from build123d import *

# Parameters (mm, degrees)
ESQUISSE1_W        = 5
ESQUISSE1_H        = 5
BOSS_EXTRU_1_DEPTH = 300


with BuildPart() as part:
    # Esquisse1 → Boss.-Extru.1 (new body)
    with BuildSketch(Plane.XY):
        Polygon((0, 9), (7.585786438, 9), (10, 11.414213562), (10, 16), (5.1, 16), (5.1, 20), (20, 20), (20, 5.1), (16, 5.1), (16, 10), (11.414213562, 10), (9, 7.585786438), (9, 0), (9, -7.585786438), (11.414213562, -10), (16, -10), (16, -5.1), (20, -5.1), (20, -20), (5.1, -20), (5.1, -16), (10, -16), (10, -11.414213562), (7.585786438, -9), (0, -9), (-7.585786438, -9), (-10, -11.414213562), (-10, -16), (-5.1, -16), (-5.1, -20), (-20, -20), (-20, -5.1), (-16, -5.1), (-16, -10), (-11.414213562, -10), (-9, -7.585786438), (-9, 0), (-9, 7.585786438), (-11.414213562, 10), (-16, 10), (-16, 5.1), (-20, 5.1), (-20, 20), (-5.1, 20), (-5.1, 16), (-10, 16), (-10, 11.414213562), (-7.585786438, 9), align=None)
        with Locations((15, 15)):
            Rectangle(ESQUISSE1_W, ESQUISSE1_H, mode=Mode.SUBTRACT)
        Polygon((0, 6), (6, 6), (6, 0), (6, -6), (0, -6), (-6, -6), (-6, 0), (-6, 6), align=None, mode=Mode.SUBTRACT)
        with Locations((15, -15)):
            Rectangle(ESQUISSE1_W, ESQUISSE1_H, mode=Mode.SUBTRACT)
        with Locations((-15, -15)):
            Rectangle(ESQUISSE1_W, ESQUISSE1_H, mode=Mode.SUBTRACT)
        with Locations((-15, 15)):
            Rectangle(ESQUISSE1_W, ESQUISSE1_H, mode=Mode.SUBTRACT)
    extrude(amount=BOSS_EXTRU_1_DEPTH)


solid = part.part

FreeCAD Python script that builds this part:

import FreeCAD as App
import Part
import Sketcher

doc = App.newDocument("Part")
body = doc.addObject("PartDesign::Body", "Body")

# Sketch on XY plane
sketch1 = doc.addObject("Sketcher::SketchObject", "Sketch")
body.addObject(sketch1)
sketch1.AttachmentSupport = (doc.XY_Plane, [""])
sketch1.MapMode = "FlatFace"
sketch1.addGeometry([
    Part.LineSegment(App.Vector(7.6, 9, 0), App.Vector(-7.6, 9, 0)),  # 0
    Part.LineSegment(App.Vector(-7.6, 9, 0), App.Vector(-10, 11.4, 0)),  # 1
    Part.LineSegment(App.Vector(-10, 11.4, 0), App.Vector(-10, 16, 0)),  # 2
    Part.LineSegment(App.Vector(-10, 16, 0), App.Vector(-5.1, 16, 0)),  # 3
    Part.LineSegment(App.Vector(-5.1, 16, 0), App.Vector(-5.1, 20, 0)),  # 4
    Part.LineSegment(App.Vector(-5.1, 20, 0), App.Vector(-20, 20, 0)),  # 5
    Part.LineSegment(App.Vector(-20, 20, 0), App.Vector(-20, 5.1, 0)),  # 6
    Part.LineSegment(App.Vector(-20, 5.1, 0), App.Vector(-16, 5.1, 0)),  # 7
    Part.LineSegment(App.Vector(-16, 5.1, 0), App.Vector(-16, 10, 0)),  # 8
    Part.LineSegment(App.Vector(-16, 10, 0), App.Vector(-11.4, 10, 0)),  # 9
    Part.LineSegment(App.Vector(-11.4, 10, 0), App.Vector(-9, 7.6, 0)),  # 10
    Part.LineSegment(App.Vector(-9, 7.6, 0), App.Vector(-9, -7.6, 0)),  # 11
    Part.LineSegment(App.Vector(-9, -7.6, 0), App.Vector(-11.4, -10, 0)),  # 12
    Part.LineSegment(App.Vector(-11.4, -10, 0), App.Vector(-16, -10, 0)),  # 13
    Part.LineSegment(App.Vector(-16, -10, 0), App.Vector(-16, -5.1, 0)),  # 14
    Part.LineSegment(App.Vector(-16, -5.1, 0), App.Vector(-20, -5.1, 0)),  # 15
    Part.LineSegment(App.Vector(-20, -5.1, 0), App.Vector(-20, -20, 0)),  # 16
    Part.LineSegment(App.Vector(-20, -20, 0), App.Vector(-5.1, -20, 0)),  # 17
    Part.LineSegment(App.Vector(-5.1, -20, 0), App.Vector(-5.1, -16, 0)),  # 18
    Part.LineSegment(App.Vector(-5.1, -16, 0), App.Vector(-10, -16, 0)),  # 19
    Part.LineSegment(App.Vector(-10, -16, 0), App.Vector(-10, -11.4, 0)),  # 20
    Part.LineSegment(App.Vector(-10, -11.4, 0), App.Vector(-7.6, -9, 0)),  # 21
    Part.LineSegment(App.Vector(-7.6, -9, 0), App.Vector(7.6, -9, 0)),  # 22
    Part.LineSegment(App.Vector(7.6, -9, 0), App.Vector(10, -11.4, 0)),  # 23
    Part.LineSegment(App.Vector(10, -11.4, 0), App.Vector(10, -16, 0)),  # 24
    Part.LineSegment(App.Vector(10, -16, 0), App.Vector(5.1, -16, 0)),  # 25
    Part.LineSegment(App.Vector(5.1, -16, 0), App.Vector(5.1, -20, 0)),  # 26
    Part.LineSegment(App.Vector(5.1, -20, 0), App.Vector(20, -20, 0)),  # 27
    Part.LineSegment(App.Vector(20, -20, 0), App.Vector(20, -5.1, 0)),  # 28
    Part.LineSegment(App.Vector(20, -5.1, 0), App.Vector(16, -5.1, 0)),  # 29
    Part.LineSegment(App.Vector(16, -5.1, 0), App.Vector(16, -10, 0)),  # 30
    Part.LineSegment(App.Vector(16, -10, 0), App.Vector(11.4, -10, 0)),  # 31
    Part.LineSegment(App.Vector(11.4, -10, 0), App.Vector(9, -7.6, 0)),  # 32
    Part.LineSegment(App.Vector(9, -7.6, 0), App.Vector(9, 7.6, 0)),  # 33
    Part.LineSegment(App.Vector(9, 7.6, 0), App.Vector(11.4, 10, 0)),  # 34
    Part.LineSegment(App.Vector(11.4, 10, 0), App.Vector(16, 10, 0)),  # 35
    Part.LineSegment(App.Vector(16, 10, 0), App.Vector(16, 5.1, 0)),  # 36
    Part.LineSegment(App.Vector(16, 5.1, 0), App.Vector(20, 5.1, 0)),  # 37
    Part.LineSegment(App.Vector(20, 5.1, 0), App.Vector(20, 20, 0)),  # 38
    Part.LineSegment(App.Vector(20, 20, 0), App.Vector(5.1, 20, 0)),  # 39
    Part.LineSegment(App.Vector(5.1, 20, 0), App.Vector(5.1, 16, 0)),  # 40
    Part.LineSegment(App.Vector(5.1, 16, 0), App.Vector(10, 16, 0)),  # 41
    Part.LineSegment(App.Vector(10, 16, 0), App.Vector(10, 11.4, 0)),  # 42
    Part.LineSegment(App.Vector(10, 11.4, 0), App.Vector(7.6, 9, 0)),  # 43
    Part.LineSegment(App.Vector(12.5, -17.5, 0), App.Vector(12.5, -12.5, 0)),  # 44
    Part.LineSegment(App.Vector(12.5, -12.5, 0), App.Vector(17.5, -12.5, 0)),  # 45
    Part.LineSegment(App.Vector(17.5, -12.5, 0), App.Vector(17.5, -17.5, 0)),  # 46
    Part.LineSegment(App.Vector(17.5, -17.5, 0), App.Vector(12.5, -17.5, 0)),  # 47
    Part.LineSegment(App.Vector(-17.5, -17.5, 0), App.Vector(-17.5, -12.5, 0)),  # 48
    Part.LineSegment(App.Vector(-17.5, -12.5, 0), App.Vector(-12.5, -12.5, 0)),  # 49
    Part.LineSegment(App.Vector(-12.5, -12.5, 0), App.Vector(-12.5, -17.5, 0)),  # 50
    Part.LineSegment(App.Vector(-12.5, -17.5, 0), App.Vector(-17.5, -17.5, 0)),  # 51
    Part.LineSegment(App.Vector(12.5, 12.5, 0), App.Vector(12.5, 17.5, 0)),  # 52
    Part.LineSegment(App.Vector(12.5, 17.5, 0), App.Vector(17.5, 17.5, 0)),  # 53
    Part.LineSegment(App.Vector(17.5, 17.5, 0), App.Vector(17.5, 12.5, 0)),  # 54
    Part.LineSegment(App.Vector(17.5, 12.5, 0), App.Vector(12.5, 12.5, 0)),  # 55
    Part.LineSegment(App.Vector(6, 6, 0), App.Vector(6, -6, 0)),  # 56
    Part.LineSegment(App.Vector(6, -6, 0), App.Vector(-6, -6, 0)),  # 57
    Part.LineSegment(App.Vector(-6, -6, 0), App.Vector(-6, 6, 0)),  # 58
    Part.LineSegment(App.Vector(-6, 6, 0), App.Vector(6, 6, 0)),  # 59
    Part.LineSegment(App.Vector(-17.5, 12.5, 0), App.Vector(-17.5, 17.5, 0)),  # 60
    Part.LineSegment(App.Vector(-17.5, 17.5, 0), App.Vector(-12.5, 17.5, 0)),  # 61
    Part.LineSegment(App.Vector(-12.5, 17.5, 0), App.Vector(-12.5, 12.5, 0)),  # 62
    Part.LineSegment(App.Vector(-12.5, 12.5, 0), App.Vector(-17.5, 12.5, 0)),  # 63
], False)
sketch1.addConstraint([
    Sketcher.Constraint("Coincident", 0, 2, 1, 1),
    Sketcher.Constraint("Coincident", 1, 2, 2, 1),
    Sketcher.Constraint("Coincident", 2, 2, 3, 1),
    Sketcher.Constraint("Coincident", 3, 2, 4, 1),
    Sketcher.Constraint("Coincident", 4, 2, 5, 1),
    Sketcher.Constraint("Coincident", 5, 2, 6, 1),
    Sketcher.Constraint("Coincident", 6, 2, 7, 1),
    Sketcher.Constraint("Coincident", 7, 2, 8, 1),
    Sketcher.Constraint("Coincident", 8, 2, 9, 1),
    Sketcher.Constraint("Coincident", 9, 2, 10, 1),
    Sketcher.Constraint("Coincident", 10, 2, 11, 1),
    Sketcher.Constraint("Coincident", 11, 2, 12, 1),
    Sketcher.Constraint("Coincident", 12, 2, 13, 1),
    Sketcher.Constraint("Coincident", 13, 2, 14, 1),
    Sketcher.Constraint("Coincident", 14, 2, 15, 1),
    Sketcher.Constraint("Coincident", 15, 2, 16, 1),
    Sketcher.Constraint("Coincident", 16, 2, 17, 1),
    Sketcher.Constraint("Coincident", 17, 2, 18, 1),
    Sketcher.Constraint("Coincident", 18, 2, 19, 1),
    Sketcher.Constraint("Coincident", 19, 2, 20, 1),
    Sketcher.Constraint("Coincident", 20, 2, 21, 1),
    Sketcher.Constraint("Coincident", 21, 2, 22, 1),
    Sketcher.Constraint("Coincident", 22, 2, 23, 1),
    Sketcher.Constraint("Coincident", 23, 2, 24, 1),
    Sketcher.Constraint("Coincident", 24, 2, 25, 1),
    Sketcher.Constraint("Coincident", 25, 2, 26, 1),
    Sketcher.Constraint("Coincident", 26, 2, 27, 1),
    Sketcher.Constraint("Coincident", 27, 2, 28, 1),
    Sketcher.Constraint("Coincident", 28, 2, 29, 1),
    Sketcher.Constraint("Coincident", 29, 2, 30, 1),
    Sketcher.Constraint("Coincident", 30, 2, 31, 1),
    Sketcher.Constraint("Coincident", 31, 2, 32, 1),
    Sketcher.Constraint("Coincident", 32, 2, 33, 1),
    Sketcher.Constraint("Coincident", 33, 2, 34, 1),
    Sketcher.Constraint("Coincident", 34, 2, 35, 1),
    Sketcher.Constraint("Coincident", 35, 2, 36, 1),
    Sketcher.Constraint("Coincident", 36, 2, 37, 1),
    Sketcher.Constraint("Coincident", 37, 2, 38, 1),
    Sketcher.Constraint("Coincident", 38, 2, 39, 1),
    Sketcher.Constraint("Coincident", 39, 2, 40, 1),
    Sketcher.Constraint("Coincident", 40, 2, 41, 1),
    Sketcher.Constraint("Coincident", 41, 2, 42, 1),
    Sketcher.Constraint("Coincident", 42, 2, 43, 1),
    Sketcher.Constraint("Coincident", 43, 2, 0, 1),
    Sketcher.Constraint("Coincident", 44, 2, 45, 1),
    Sketcher.Constraint("Coincident", 45, 2, 46, 1),
    Sketcher.Constraint("Coincident", 46, 2, 47, 1),
    Sketcher.Constraint("Coincident", 47, 2, 44, 1),
    Sketcher.Constraint("Coincident", 48, 2, 49, 1),
    Sketcher.Constraint("Coincident", 49, 2, 50, 1),
    Sketcher.Constraint("Coincident", 50, 2, 51, 1),
    Sketcher.Constraint("Coincident", 51, 2, 48, 1),
    Sketcher.Constraint("Coincident", 52, 2, 53, 1),
    Sketcher.Constraint("Coincident", 53, 2, 54, 1),
    Sketcher.Constraint("Coincident", 54, 2, 55, 1),
    Sketcher.Constraint("Coincident", 55, 2, 52, 1),
    Sketcher.Constraint("Coincident", 56, 2, 57, 1),
    Sketcher.Constraint("Coincident", 57, 2, 58, 1),
    Sketcher.Constraint("Coincident", 58, 2, 59, 1),
    Sketcher.Constraint("Coincident", 59, 2, 56, 1),
    Sketcher.Constraint("Coincident", 60, 2, 61, 1),
    Sketcher.Constraint("Coincident", 61, 2, 62, 1),
    Sketcher.Constraint("Coincident", 62, 2, 63, 1),
    Sketcher.Constraint("Coincident", 63, 2, 60, 1),
    Sketcher.Constraint("Horizontal", 0),
    Sketcher.Constraint("Vertical", 2),
    Sketcher.Constraint("Horizontal", 3),
    Sketcher.Constraint("Vertical", 4),
    Sketcher.Constraint("Horizontal", 5),
    Sketcher.Constraint("Vertical", 6),
    Sketcher.Constraint("Horizontal", 7),
    Sketcher.Constraint("Vertical", 8),
    Sketcher.Constraint("Horizontal", 9),
    Sketcher.Constraint("Vertical", 11),
    Sketcher.Constraint("Horizontal", 13),
    Sketcher.Constraint("Vertical", 14),
    Sketcher.Constraint("Horizontal", 15),
    Sketcher.Constraint("Vertical", 16),
    Sketcher.Constraint("Horizontal", 17),
    Sketcher.Constraint("Vertical", 18),
    Sketcher.Constraint("Horizontal", 19),
    Sketcher.Constraint("Vertical", 20),
    Sketcher.Constraint("Horizontal", 22),
    Sketcher.Constraint("Vertical", 24),
    Sketcher.Constraint("Horizontal", 25),
    Sketcher.Constraint("Vertical", 26),
    Sketcher.Constraint("Horizontal", 27),
    Sketcher.Constraint("Vertical", 28),
    Sketcher.Constraint("Horizontal", 29),
    Sketcher.Constraint("Vertical", 30),
    Sketcher.Constraint("Horizontal", 31),
    Sketcher.Constraint("Vertical", 33),
    Sketcher.Constraint("Horizontal", 35),
    Sketcher.Constraint("Vertical", 36),
    Sketcher.Constraint("Horizontal", 37),
    Sketcher.Constraint("Vertical", 38),
    Sketcher.Constraint("Horizontal", 39),
    Sketcher.Constraint("Vertical", 40),
    Sketcher.Constraint("Horizontal", 41),
    Sketcher.Constraint("Vertical", 42),
    Sketcher.Constraint("Vertical", 44),
    Sketcher.Constraint("Horizontal", 45),
    Sketcher.Constraint("Vertical", 46),
    Sketcher.Constraint("Horizontal", 47),
    Sketcher.Constraint("Vertical", 48),
    Sketcher.Constraint("Horizontal", 49),
    Sketcher.Constraint("Vertical", 50),
    Sketcher.Constraint("Horizontal", 51),
    Sketcher.Constraint("Vertical", 52),
    Sketcher.Constraint("Horizontal", 53),
    Sketcher.Constraint("Vertical", 54),
    Sketcher.Constraint("Horizontal", 55),
    Sketcher.Constraint("Vertical", 56),
    Sketcher.Constraint("Horizontal", 57),
    Sketcher.Constraint("Vertical", 58),
    Sketcher.Constraint("Horizontal", 59),
    Sketcher.Constraint("Vertical", 60),
    Sketcher.Constraint("Horizontal", 61),
    Sketcher.Constraint("Vertical", 62),
    Sketcher.Constraint("Horizontal", 63),
    Sketcher.Constraint("Symmetric", 0, 2, 22, 2, -1, 1),
    Sketcher.Constraint("Symmetric", 1, 2, 23, 2, -1, 1),
    Sketcher.Constraint("Symmetric", 3, 2, 25, 2, -1, 1),
    Sketcher.Constraint("Symmetric", 5, 2, 27, 2, -1, 1),
    Sketcher.Constraint("Symmetric", 7, 2, 29, 2, -1, 1),
    Sketcher.Constraint("Symmetric", 9, 2, 31, 2, -1, 1),
    Sketcher.Constraint("Symmetric", 10, 2, 32, 2, -1, 1),
    Sketcher.Constraint("Symmetric", 12, 2, 34, 2, -1, 1),
    Sketcher.Constraint("Symmetric", 14, 2, 36, 2, -1, 1),
    Sketcher.Constraint("Symmetric", 16, 2, 38, 2, -1, 1),
    Sketcher.Constraint("Symmetric", 18, 2, 40, 2, -1, 1),
    Sketcher.Constraint("Symmetric", 20, 2, 42, 2, -1, 1),
    Sketcher.Constraint("Symmetric", 50, 2, 52, 2, -1, 1),
    Sketcher.Constraint("Symmetric", 48, 2, 54, 2, -1, 1),
    Sketcher.Constraint("Symmetric", 56, 2, 58, 2, -1, 1),
    Sketcher.Constraint("Symmetric", 46, 2, 60, 2, -1, 1),
    Sketcher.Constraint("Symmetric", 44, 2, 62, 2, -1, 1),
    Sketcher.Constraint("Symmetric", 20, 2, 23, 2, -2),
    Sketcher.Constraint("Symmetric", 18, 2, 25, 2, -2),
    Sketcher.Constraint("Symmetric", 16, 2, 27, 2, -2),
    Sketcher.Constraint("Symmetric", 14, 2, 29, 2, -2),
    Sketcher.Constraint("Symmetric", 12, 2, 31, 2, -2),
    Sketcher.Constraint("Symmetric", 45, 2, 48, 2, -2),
    Sketcher.Constraint("Symmetric", 47, 2, 50, 2, -2),
    Sketcher.Constraint("Parallel", 1, 10),
    Sketcher.Constraint("Perpendicular", 10, 12),
    Sketcher.Constraint("Parallel", 12, 21),
    Sketcher.Constraint("Perpendicular", 32, 34),
    Sketcher.Constraint("Parallel", 34, 43),
    Sketcher.Constraint("Horizontal", 11, 2, 32, 2),
    Sketcher.Constraint("Equal", 35, 2),
    Sketcher.Constraint("Equal", 37, 4),
    Sketcher.Constraint("Equal", 39, 6),
    Sketcher.Constraint("Equal", 41, 8),
    Sketcher.Constraint("Equal", 22, 11),
    Sketcher.Constraint("Equal", 63, 44),
    Sketcher.Constraint("Equal", 59, 56),
    Sketcher.Constraint("Equal", 1, 10),
    Sketcher.Constraint("DistanceX", 7, 1, 7, 2, 4.0),
    Sketcher.Constraint("DistanceX", 45, 1, 45, 2, 5.0),
    Sketcher.Constraint("DistanceX", 57, 2, 57, 1, 12.0),
    Sketcher.Constraint("DistanceX", 3, 1, 3, 2, 4.9),
    Sketcher.Constraint("DistanceX", 5, 2, 5, 1, 14.9),
    Sketcher.Constraint("DistanceY", -1, 1, 0, 2, 9.0),
    Sketcher.Constraint("DistanceX", 1, 2, -1, 1, 10.0),
    Sketcher.Constraint("DistanceX", -1, 1, 44, 2, 12.5),
    Sketcher.Constraint("DistanceY", 44, 2, -1, 1, 12.5),
    Sketcher.Constraint("DistanceX", 0, 2, 0, 1, 15.171573),
])
pad1 = doc.addObject("PartDesign::Pad", "Pad")
body.addObject(pad1)
pad1.Profile = sketch1
pad1.Length = 300

doc.recompute()
